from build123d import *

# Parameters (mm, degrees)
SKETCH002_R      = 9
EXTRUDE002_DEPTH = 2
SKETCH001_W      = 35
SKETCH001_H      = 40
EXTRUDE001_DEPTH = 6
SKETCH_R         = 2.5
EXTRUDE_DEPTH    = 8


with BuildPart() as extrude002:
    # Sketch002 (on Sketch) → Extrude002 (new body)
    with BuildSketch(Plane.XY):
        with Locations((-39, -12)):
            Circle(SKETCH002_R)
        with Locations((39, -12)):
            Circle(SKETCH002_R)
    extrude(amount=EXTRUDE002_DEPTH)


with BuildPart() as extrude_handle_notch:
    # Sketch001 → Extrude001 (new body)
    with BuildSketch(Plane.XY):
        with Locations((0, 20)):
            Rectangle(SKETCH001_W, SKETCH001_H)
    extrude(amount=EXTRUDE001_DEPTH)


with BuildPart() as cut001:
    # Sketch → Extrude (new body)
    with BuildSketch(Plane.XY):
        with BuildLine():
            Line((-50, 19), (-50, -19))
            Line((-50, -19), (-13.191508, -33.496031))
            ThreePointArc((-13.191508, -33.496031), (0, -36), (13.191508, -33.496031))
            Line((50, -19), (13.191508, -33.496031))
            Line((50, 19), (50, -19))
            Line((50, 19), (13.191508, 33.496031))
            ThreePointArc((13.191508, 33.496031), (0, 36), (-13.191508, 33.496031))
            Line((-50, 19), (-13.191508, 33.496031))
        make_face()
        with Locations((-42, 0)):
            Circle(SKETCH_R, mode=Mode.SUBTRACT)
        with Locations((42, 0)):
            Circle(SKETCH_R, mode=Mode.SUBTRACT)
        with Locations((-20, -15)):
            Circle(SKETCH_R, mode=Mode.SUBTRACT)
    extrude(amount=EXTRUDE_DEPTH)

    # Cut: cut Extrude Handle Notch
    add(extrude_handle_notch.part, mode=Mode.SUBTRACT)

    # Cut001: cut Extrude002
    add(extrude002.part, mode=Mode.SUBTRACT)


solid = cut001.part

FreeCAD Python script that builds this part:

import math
import FreeCAD as App
import Part
import Sketcher

V = App.Vector


def add_polygon(sketch, points):
    """Adds a closed chain of lines whose ends are joined by coincident constraints."""
    first, n = sketch.GeometryCount, len(points)
    for a, b in zip(points, points[1:] + points[:1]):
        sketch.addGeometry(Part.LineSegment(App.Vector(*a, 0), App.Vector(*b, 0)), False)
    for i in range(n):
        sketch.addConstraint(Sketcher.Constraint("Coincident", first + i, 2, first + (i + 1) % n, 1))

doc = App.newDocument("Part")
params = doc.addObject("Spreadsheet::Sheet", "Params")
for row, (alias, value) in enumerate([
    ("sketch1_diameter", "18 mm"),
    ("pad1_length", "2 mm"),
    ("sketch2_width", "35 mm"),
    ("sketch2_height", "40 mm"),
    ("pad2_length", "6 mm"),
    ("sketch3_diameter", "5 mm"),
    ("sketch3_height", "38 mm"),
    ("pad3_length", "8 mm"),
], start=1):
    params.set(f"A{row}", alias)
    params.set(f"B{row}", "=" + value)
    params.setAlias(f"B{row}", alias)

body = doc.addObject("PartDesign::Body", "Body")
body.AllowCompound = True

sketch1 = body.newObject("Sketcher::SketchObject", "Sketch")
sketch1.AttachmentSupport = (doc.getObject("XY_Plane"), [""])
sketch1.MapMode = "FlatFace"
sketch1.addGeometry([
    Part.Circle(V(-39, -12, 0), V(0, 0, 1), 9),
    Part.Circle(V(39, -12, 0), V(0, 0, 1), 9),
], False)
sketch1.addConstraint([
    Sketcher.Constraint("Equal", 0, 1),
    Sketcher.Constraint("Symmetric", 0, 3, 1, 3, -2),
    Sketcher.Constraint("Diameter", 0, 18.0),
    Sketcher.Constraint("DistanceX", 0, 3, -1, 1, 39.0),
    Sketcher.Constraint("DistanceY", 0, 3, -1, 1, 12.0),
])
sketch1.setExpression("Constraints[2]", "Params.sketch1_diameter")
pad1 = body.newObject("PartDesign::Pad", "Pad")
pad1.Profile = sketch1
pad1.setExpression("Length", "Params.pad1_length")
body2 = doc.addObject("PartDesign::Body", "Body001")

sketch2 = body2.newObject("Sketcher::SketchObject", "Sketch001")
sketch2.AttachmentSupport = (doc.getObject("XY_Plane001"), [""])
sketch2.MapMode = "FlatFace"
add_polygon(sketch2, [(-18, 40), (-18, 0), (18, 0), (18, 40)])
sketch2.addConstraint([
    Sketcher.Constraint("Vertical", 0),
    Sketcher.Constraint("Horizontal", 1),
    Sketcher.Constraint("Vertical", 2),
    Sketcher.Constraint("Horizontal", 3),
    Sketcher.Constraint("Symmetric", 0, 2, 1, 2, -1, 1),
    Sketcher.Constraint("DistanceX", 1, 1, 1, 2, 35.0),
    Sketcher.Constraint("DistanceY", 0, 2, 0, 1, 40.0),
])
sketch2.setExpression("Constraints[9]", "Params.sketch2_width")
sketch2.setExpression("Constraints[10]", "Params.sketch2_height")
pad2 = body2.newObject("PartDesign::Pad", "Pad001")
pad2.Profile = sketch2
pad2.setExpression("Length", "Params.pad2_length")
body3 = doc.addObject("PartDesign::Body", "Body002")

sketch3 = body3.newObject("Sketcher::SketchObject", "Sketch002")
sketch3.AttachmentSupport = (doc.getObject("XY_Plane002"), [""])
sketch3.MapMode = "FlatFace"
sketch3.addGeometry([
    Part.LineSegment(V(-50, 19, 0), V(-50, -19, 0)),
    Part.LineSegment(V(-50, -19, 0), V(-13.2, -33.5, 0)),
    Part.ArcOfCircle(Part.Circle(V(0, 0, 0), V(0, 0, 1), 36), math.radians(-111), math.radians(-69)),
    Part.LineSegment(V(13.2, -33.5, 0), V(50, -19, 0)),
    Part.LineSegment(V(50, -19, 0), V(50, 19, 0)),
    Part.LineSegment(V(50, 19, 0), V(13.2, 33.5, 0)),
    Part.ArcOfCircle(Part.Circle(V(0, 0, 0), V(0, 0, 1), 36), math.radians(69), math.radians(111)),
    Part.LineSegment(V(-13.2, 33.5, 0), V(-50, 19, 0)),
    Part.Circle(V(-20, -15, 0), V(0, 0, 1), 2.5),
    Part.Circle(V(-42, 0, 0), V(0, 0, 1), 2.5),
    Part.Circle(V(42, 0, 0), V(0, 0, 1), 2.5),
], False)
sketch3.addConstraint([
    Sketcher.Constraint("Coincident", 0, 2, 1, 1),
    Sketcher.Constraint("Tangent", 1, 2, 2, 1),
    Sketcher.Constraint("Tangent", 2, 2, 3, 1),
    Sketcher.Constraint("Coincident", 3, 2, 4, 1),
    Sketcher.Constraint("Coincident", 4, 2, 5, 1),
    Sketcher.Constraint("Tangent", 5, 2, 6, 1),
    Sketcher.Constraint("Tangent", 6, 2, 7, 1),
    Sketcher.Constraint("Coincident", 7, 2, 0, 1),
    Sketcher.Constraint("Vertical", 0),
    Sketcher.Constraint("Vertical", 4),
    Sketcher.Constraint("Coincident", 2, 3, -1, 1),
    Sketcher.Constraint("Coincident", 6, 3, -1, 1),
    Sketcher.Constraint("Equal", 2, 6),
    Sketcher.Constraint("Equal", 8, 9),
    Sketcher.Constraint("Equal", 9, 10),
    Sketcher.Constraint("Symmetric", 9, 3, 10, 3, -1, 1),
    Sketcher.Constraint("Symmetric", 0, 2, 4, 2, -1, 1),
    Sketcher.Constraint("PointOnObject", 9, 3, -1),
    Sketcher.Constraint("Parallel", 3, 7),
    Sketcher.Constraint("Horizontal", 1, 2, 2, 2),
    Sketcher.Constraint("Diameter", 8, 5.0),
    Sketcher.Constraint("DistanceY", 0, 2, 0, 1, 38.0),
    Sketcher.Constraint("DistanceX", 8, 3, -1, 1, 20.0),
    Sketcher.Constraint("DistanceY", 8, 3, -1, 1, 15.0),
    Sketcher.Constraint("DistanceX", 9, 3, -1, 1, 42.0),
    Sketcher.Constraint("DistanceX", 0, 2, -1, 1, 50.0),
    Sketcher.Constraint("Radius", 2, 35.999995),
])
sketch3.setExpression("Constraints[20]", "Params.sketch3_diameter")
sketch3.setExpression("Constraints[21]", "Params.sketch3_height")
pad3 = body3.newObject("PartDesign::Pad", "Pad002")
pad3.Profile = sketch3
pad3.setExpression("Length", "Params.pad3_length")
doc.recompute()

boolean = body3.newObject("PartDesign::Boolean", "Boolean")
boolean.Type = "Cut"
boolean.addObjects([body2])
doc.recompute()

boolean2 = body3.newObject("PartDesign::Boolean", "Boolean001")
boolean2.Type = "Cut"
boolean2.addObjects([body])

doc.recompute()
